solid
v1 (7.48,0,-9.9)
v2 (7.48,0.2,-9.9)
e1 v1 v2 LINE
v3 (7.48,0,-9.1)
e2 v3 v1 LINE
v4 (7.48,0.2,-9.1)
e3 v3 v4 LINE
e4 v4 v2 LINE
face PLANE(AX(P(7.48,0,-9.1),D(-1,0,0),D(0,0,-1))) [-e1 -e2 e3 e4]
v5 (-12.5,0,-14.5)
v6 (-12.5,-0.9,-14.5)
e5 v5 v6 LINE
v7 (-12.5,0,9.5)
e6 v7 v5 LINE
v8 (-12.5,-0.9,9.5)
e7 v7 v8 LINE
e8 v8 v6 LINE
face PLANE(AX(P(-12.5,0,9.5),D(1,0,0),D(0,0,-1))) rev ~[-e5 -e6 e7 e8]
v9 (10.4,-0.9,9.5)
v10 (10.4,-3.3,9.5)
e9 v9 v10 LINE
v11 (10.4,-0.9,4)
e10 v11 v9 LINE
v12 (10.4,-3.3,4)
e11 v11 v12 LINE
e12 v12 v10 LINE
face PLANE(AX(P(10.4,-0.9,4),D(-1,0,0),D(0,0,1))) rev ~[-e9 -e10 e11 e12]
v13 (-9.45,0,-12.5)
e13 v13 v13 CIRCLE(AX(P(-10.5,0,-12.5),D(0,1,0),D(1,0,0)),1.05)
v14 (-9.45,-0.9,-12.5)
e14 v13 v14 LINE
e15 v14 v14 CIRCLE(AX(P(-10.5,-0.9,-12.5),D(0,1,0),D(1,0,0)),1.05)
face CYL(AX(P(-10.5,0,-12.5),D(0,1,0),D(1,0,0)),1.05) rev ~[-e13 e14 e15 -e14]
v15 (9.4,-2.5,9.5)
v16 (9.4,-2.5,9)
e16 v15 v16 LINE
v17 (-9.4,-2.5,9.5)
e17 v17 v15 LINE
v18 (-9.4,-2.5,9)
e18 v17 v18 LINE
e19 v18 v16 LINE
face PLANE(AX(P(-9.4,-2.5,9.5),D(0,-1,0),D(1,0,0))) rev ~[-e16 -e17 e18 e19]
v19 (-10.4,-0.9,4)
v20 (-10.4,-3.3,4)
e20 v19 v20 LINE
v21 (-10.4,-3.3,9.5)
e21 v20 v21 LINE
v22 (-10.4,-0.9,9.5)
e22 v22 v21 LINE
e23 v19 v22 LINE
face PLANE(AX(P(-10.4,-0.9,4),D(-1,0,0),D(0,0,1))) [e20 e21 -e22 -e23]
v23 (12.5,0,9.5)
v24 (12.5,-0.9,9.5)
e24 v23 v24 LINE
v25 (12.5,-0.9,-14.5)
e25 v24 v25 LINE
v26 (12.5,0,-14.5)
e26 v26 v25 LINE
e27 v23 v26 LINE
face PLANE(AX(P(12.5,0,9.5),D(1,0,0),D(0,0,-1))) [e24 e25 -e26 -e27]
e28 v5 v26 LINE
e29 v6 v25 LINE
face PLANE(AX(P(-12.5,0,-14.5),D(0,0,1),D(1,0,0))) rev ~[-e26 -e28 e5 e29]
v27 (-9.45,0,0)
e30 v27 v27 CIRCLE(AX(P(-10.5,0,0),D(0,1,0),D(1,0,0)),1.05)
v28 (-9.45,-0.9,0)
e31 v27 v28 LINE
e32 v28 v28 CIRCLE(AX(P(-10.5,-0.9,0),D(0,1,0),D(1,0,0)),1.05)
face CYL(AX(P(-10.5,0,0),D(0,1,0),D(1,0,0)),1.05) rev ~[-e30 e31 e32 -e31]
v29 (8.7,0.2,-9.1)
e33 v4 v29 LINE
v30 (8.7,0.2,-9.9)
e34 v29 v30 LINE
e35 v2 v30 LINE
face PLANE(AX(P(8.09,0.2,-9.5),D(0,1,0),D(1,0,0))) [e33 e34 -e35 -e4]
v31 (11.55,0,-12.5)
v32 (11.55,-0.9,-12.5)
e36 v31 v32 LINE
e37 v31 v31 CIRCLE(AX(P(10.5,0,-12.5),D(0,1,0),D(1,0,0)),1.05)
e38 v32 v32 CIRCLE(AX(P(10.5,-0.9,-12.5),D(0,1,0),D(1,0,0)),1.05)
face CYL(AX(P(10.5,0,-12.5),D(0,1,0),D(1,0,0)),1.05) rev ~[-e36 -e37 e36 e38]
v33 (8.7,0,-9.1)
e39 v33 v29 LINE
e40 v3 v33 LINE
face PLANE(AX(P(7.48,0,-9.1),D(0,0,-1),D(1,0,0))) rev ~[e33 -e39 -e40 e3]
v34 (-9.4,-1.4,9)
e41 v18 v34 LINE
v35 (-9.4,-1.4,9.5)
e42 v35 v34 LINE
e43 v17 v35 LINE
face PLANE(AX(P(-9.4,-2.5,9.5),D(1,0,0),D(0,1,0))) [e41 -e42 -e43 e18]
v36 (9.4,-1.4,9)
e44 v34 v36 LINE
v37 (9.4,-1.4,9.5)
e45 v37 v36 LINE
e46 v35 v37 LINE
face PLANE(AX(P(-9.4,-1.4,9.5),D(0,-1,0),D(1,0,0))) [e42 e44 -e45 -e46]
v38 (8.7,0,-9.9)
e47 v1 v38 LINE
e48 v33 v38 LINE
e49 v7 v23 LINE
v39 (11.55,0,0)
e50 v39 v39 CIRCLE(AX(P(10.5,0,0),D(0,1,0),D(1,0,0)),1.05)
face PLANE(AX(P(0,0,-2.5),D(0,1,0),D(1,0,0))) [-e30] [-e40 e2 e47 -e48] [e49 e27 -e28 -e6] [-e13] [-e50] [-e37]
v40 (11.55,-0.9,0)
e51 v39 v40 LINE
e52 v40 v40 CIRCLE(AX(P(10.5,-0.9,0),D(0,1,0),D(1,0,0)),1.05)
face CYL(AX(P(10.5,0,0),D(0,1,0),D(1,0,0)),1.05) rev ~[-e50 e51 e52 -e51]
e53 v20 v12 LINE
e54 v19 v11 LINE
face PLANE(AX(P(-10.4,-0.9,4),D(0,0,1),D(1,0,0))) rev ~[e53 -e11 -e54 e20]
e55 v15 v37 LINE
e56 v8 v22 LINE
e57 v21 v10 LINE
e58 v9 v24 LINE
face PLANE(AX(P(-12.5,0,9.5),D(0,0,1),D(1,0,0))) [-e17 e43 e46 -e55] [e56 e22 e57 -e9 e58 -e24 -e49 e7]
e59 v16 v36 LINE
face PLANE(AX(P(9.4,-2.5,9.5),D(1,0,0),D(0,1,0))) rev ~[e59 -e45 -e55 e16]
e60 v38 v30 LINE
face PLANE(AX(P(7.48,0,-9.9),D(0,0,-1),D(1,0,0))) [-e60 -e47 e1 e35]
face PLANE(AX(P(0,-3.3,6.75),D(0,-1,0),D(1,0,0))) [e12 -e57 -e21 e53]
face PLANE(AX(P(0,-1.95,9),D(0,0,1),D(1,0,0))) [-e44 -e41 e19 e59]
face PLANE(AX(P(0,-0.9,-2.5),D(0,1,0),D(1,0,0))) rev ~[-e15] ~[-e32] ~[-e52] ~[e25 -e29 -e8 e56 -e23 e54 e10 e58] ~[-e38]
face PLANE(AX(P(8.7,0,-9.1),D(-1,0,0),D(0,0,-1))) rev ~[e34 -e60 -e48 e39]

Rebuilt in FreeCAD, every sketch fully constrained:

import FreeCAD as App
import Part
import Sketcher

doc = App.newDocument("Part")
body = doc.addObject("PartDesign::Body", "Body")

# Sketch on XZ plane
sketch1 = body.newObject("Sketcher::SketchObject", "Sketch")
sketch1.AttachmentSupport = (doc.getObject("XZ_Plane"), [""])
sketch1.MapMode = "FlatFace"
sketch1.addGeometry([
    Part.LineSegment(App.Vector(-12, -14, 0), App.Vector(-12, 10, 0)),
    Part.LineSegment(App.Vector(-12, 10, 0), App.Vector(12, 10, 0)),
    Part.LineSegment(App.Vector(12, 10, 0), App.Vector(12, -14, 0)),
    Part.LineSegment(App.Vector(12, -14, 0), App.Vector(-12, -14, 0)),
], False)
sketch1.addConstraint([
    Sketcher.Constraint("Coincident", 0, 2, 1, 1),
    Sketcher.Constraint("Coincident", 1, 2, 2, 1),
    Sketcher.Constraint("Coincident", 2, 2, 3, 1),
    Sketcher.Constraint("Coincident", 3, 2, 0, 1),
    Sketcher.Constraint("Vertical", 0),
    Sketcher.Constraint("Horizontal", 1),
    Sketcher.Constraint("Vertical", 2),
    Sketcher.Constraint("Horizontal", 3),
    Sketcher.Constraint("DistanceX", 1, 1, 1, 2, 25.0),
    Sketcher.Constraint("DistanceY", 0, 1, 0, 2, 24.0),
    Sketcher.Constraint("DistanceX", 0, 2, -1, 1, 12.5),
    Sketcher.Constraint("DistanceY", -1, 1, 0, 2, 9.5),
])
pad1 = body.newObject("PartDesign::Pad", "Pad")
pad1.Profile = sketch1
pad1.Length = 0.9

# Sketch on XZ plane
sketch2 = body.newObject("Sketcher::SketchObject", "Sketch001")
sketch2.AttachmentSupport = (doc.getObject("XZ_Plane"), [""])
sketch2.MapMode = "FlatFace"
sketch2.addGeometry([
    Part.Circle(App.Vector(10.5, -12.5, 0), App.Vector(0, 0, 1), 1.1),
    Part.Circle(App.Vector(10.5, 0, 0), App.Vector(0, 0, 1), 1.1),
    Part.Circle(App.Vector(-10.5, 0, 0), App.Vector(0, 0, 1), 1.1),
    Part.Circle(App.Vector(-10.5, -12.5, 0), App.Vector(0, 0, 1), 1.1),
], False)
sketch2.addConstraint([
    Sketcher.Constraint("Equal", 0, 1),
    Sketcher.Constraint("Equal", 1, 2),
    Sketcher.Constraint("Equal", 2, 3),
    Sketcher.Constraint("Symmetric", 1, 3, 2, 3, -1, 1),
    Sketcher.Constraint("Symmetric", 0, 3, 3, 3, -2),
    Sketcher.Constraint("PointOnObject", 1, 3, -1),
    Sketcher.Constraint("Vertical", 0, 3, 1, 3),
    Sketcher.Constraint("Diameter", 0, 2.1),
    Sketcher.Constraint("DistanceX", 2, 3, 1, 3, 21.0),
    Sketcher.Constraint("DistanceY", 0, 3, -1, 1, 12.5),
])
pocket1 = body.newObject("PartDesign::Pocket", "Pocket")
pocket1.Profile = sketch2
pocket1.Type = "ThroughAll"
pocket1.Reversed = True

# Sketch on XZ plane
sketch3 = body.newObject("Sketcher::SketchObject", "Sketch002")
sketch3.AttachmentSupport = (doc.getObject("XZ_Plane"), [""])
sketch3.MapMode = "FlatFace"
sketch3.AttachmentOffset = App.Placement(App.Vector(0, 0, 0.9), App.Rotation())
sketch3.addGeometry([
    Part.LineSegment(App.Vector(-10, 10, 0), App.Vector(-10, 4, 0)),
    Part.LineSegment(App.Vector(-10, 4, 0), App.Vector(10, 4, 0)),
    Part.LineSegment(App.Vector(10, 4, 0), App.Vector(10, 10, 0)),
    Part.LineSegment(App.Vector(10, 10, 0), App.Vector(-10, 10, 0)),
], False)
sketch3.addConstraint([
    Sketcher.Constraint("Coincident", 0, 2, 1, 1),
    Sketcher.Constraint("Coincident", 1, 2, 2, 1),
    Sketcher.Constraint("Coincident", 2, 2, 3, 1),
    Sketcher.Constraint("Coincident", 3, 2, 0, 1),
    Sketcher.Constraint("Vertical", 0),
    Sketcher.Constraint("Horizontal", 1),
    Sketcher.Constraint("Vertical", 2),
    Sketcher.Constraint("Horizontal", 3),
    Sketcher.Constraint("DistanceX", 1, 1, 1, 2, 20.8),
    Sketcher.Constraint("DistanceY", 0, 2, 0, 1, 5.5),
    Sketcher.Constraint("DistanceY", -1, 1, 0, 2, 4.0),
    Sketcher.Constraint("DistanceX", 0, 2, -1, 1, 10.4),
])
pad2 = body.newObject("PartDesign::Pad", "Pad001")
pad2.Profile = sketch3
pad2.Length = 2.4

# Sketch on XZ plane
sketch4 = body.newObject("Sketcher::SketchObject", "Sketch003")
sketch4.AttachmentSupport = (doc.getObject("XZ_Plane"), [""])
sketch4.MapMode = "FlatFace"
sketch4.addGeometry([
    Part.LineSegment(App.Vector(7.5, -9.9, 0), App.Vector(7.5, -9.1, 0)),
    Part.LineSegment(App.Vector(7.5, -9.1, 0), App.Vector(8.7, -9.1, 0)),
    Part.LineSegment(App.Vector(8.7, -9.1, 0), App.Vector(8.7, -9.9, 0)),
    Part.LineSegment(App.Vector(8.7, -9.9, 0), App.Vector(7.5, -9.9, 0)),
], False)
sketch4.addConstraint([
    Sketcher.Constraint("Coincident", 0, 2, 1, 1),
    Sketcher.Constraint("Coincident", 1, 2, 2, 1),
    Sketcher.Constraint("Coincident", 2, 2, 3, 1),
    Sketcher.Constraint("Coincident", 3, 2, 0, 1),
    Sketcher.Constraint("Vertical", 0),
    Sketcher.Constraint("Horizontal", 1),
    Sketcher.Constraint("Vertical", 2),
    Sketcher.Constraint("Horizontal", 3),
    Sketcher.Constraint("DistanceY", 0, 1, 0, 2, 0.8),
    Sketcher.Constraint("DistanceX", 1, 1, 1, 2, 1.22),
    Sketcher.Constraint("DistanceY", 0, 2, -1, 1, 9.1),
    Sketcher.Constraint("DistanceX", -1, 1, 1, 2, 8.7),
])
pad3 = body.newObject("PartDesign::Pad", "Pad002")
pad3.Profile = sketch4
pad3.Length = 0.2
pad3.Reversed = True

# Sketch on XY plane
sketch5 = body.newObject("Sketcher::SketchObject", "Sketch004")
sketch5.AttachmentSupport = (doc.getObject("XY_Plane"), [""])
sketch5.MapMode = "FlatFace"
sketch5.AttachmentOffset = App.Placement(App.Vector(0, 0, 9.5), App.Rotation())
sketch5.addGeometry([
    Part.LineSegment(App.Vector(-9.4, -1.4, 0), App.Vector(-9.4, -2.5, 0)),
    Part.LineSegment(App.Vector(-9.4, -2.5, 0), App.Vector(9.4, -2.5, 0)),
    Part.LineSegment(App.Vector(9.4, -2.5, 0), App.Vector(9.4, -1.4, 0)),
    Part.LineSegment(App.Vector(9.4, -1.4, 0), App.Vector(-9.4, -1.4, 0)),
], False)
sketch5.addConstraint([
    Sketcher.Constraint("Coincident", 0, 2, 1, 1),
    Sketcher.Constraint("Coincident", 1, 2, 2, 1),
    Sketcher.Constraint("Coincident", 2, 2, 3, 1),
    Sketcher.Constraint("Coincident", 3, 2, 0, 1),
    Sketcher.Constraint("Vertical", 0),
    Sketcher.Constraint("Horizontal", 1),
    Sketcher.Constraint("Vertical", 2),
    Sketcher.Constraint("Horizontal", 3),
    Sketcher.Constraint("DistanceX", 1, 1, 1, 2, 18.8),
    Sketcher.Constraint("DistanceY", 0, 2, 0, 1, 1.1),
    Sketcher.Constraint("DistanceX", 0, 2, -1, 1, 9.4),
    Sketcher.Constraint("DistanceY", 0, 2, -1, 1, 2.5),
])
pocket2 = body.newObject("PartDesign::Pocket", "Pocket001")
pocket2.Profile = sketch5
pocket2.Length = 0.5

doc.recompute()
